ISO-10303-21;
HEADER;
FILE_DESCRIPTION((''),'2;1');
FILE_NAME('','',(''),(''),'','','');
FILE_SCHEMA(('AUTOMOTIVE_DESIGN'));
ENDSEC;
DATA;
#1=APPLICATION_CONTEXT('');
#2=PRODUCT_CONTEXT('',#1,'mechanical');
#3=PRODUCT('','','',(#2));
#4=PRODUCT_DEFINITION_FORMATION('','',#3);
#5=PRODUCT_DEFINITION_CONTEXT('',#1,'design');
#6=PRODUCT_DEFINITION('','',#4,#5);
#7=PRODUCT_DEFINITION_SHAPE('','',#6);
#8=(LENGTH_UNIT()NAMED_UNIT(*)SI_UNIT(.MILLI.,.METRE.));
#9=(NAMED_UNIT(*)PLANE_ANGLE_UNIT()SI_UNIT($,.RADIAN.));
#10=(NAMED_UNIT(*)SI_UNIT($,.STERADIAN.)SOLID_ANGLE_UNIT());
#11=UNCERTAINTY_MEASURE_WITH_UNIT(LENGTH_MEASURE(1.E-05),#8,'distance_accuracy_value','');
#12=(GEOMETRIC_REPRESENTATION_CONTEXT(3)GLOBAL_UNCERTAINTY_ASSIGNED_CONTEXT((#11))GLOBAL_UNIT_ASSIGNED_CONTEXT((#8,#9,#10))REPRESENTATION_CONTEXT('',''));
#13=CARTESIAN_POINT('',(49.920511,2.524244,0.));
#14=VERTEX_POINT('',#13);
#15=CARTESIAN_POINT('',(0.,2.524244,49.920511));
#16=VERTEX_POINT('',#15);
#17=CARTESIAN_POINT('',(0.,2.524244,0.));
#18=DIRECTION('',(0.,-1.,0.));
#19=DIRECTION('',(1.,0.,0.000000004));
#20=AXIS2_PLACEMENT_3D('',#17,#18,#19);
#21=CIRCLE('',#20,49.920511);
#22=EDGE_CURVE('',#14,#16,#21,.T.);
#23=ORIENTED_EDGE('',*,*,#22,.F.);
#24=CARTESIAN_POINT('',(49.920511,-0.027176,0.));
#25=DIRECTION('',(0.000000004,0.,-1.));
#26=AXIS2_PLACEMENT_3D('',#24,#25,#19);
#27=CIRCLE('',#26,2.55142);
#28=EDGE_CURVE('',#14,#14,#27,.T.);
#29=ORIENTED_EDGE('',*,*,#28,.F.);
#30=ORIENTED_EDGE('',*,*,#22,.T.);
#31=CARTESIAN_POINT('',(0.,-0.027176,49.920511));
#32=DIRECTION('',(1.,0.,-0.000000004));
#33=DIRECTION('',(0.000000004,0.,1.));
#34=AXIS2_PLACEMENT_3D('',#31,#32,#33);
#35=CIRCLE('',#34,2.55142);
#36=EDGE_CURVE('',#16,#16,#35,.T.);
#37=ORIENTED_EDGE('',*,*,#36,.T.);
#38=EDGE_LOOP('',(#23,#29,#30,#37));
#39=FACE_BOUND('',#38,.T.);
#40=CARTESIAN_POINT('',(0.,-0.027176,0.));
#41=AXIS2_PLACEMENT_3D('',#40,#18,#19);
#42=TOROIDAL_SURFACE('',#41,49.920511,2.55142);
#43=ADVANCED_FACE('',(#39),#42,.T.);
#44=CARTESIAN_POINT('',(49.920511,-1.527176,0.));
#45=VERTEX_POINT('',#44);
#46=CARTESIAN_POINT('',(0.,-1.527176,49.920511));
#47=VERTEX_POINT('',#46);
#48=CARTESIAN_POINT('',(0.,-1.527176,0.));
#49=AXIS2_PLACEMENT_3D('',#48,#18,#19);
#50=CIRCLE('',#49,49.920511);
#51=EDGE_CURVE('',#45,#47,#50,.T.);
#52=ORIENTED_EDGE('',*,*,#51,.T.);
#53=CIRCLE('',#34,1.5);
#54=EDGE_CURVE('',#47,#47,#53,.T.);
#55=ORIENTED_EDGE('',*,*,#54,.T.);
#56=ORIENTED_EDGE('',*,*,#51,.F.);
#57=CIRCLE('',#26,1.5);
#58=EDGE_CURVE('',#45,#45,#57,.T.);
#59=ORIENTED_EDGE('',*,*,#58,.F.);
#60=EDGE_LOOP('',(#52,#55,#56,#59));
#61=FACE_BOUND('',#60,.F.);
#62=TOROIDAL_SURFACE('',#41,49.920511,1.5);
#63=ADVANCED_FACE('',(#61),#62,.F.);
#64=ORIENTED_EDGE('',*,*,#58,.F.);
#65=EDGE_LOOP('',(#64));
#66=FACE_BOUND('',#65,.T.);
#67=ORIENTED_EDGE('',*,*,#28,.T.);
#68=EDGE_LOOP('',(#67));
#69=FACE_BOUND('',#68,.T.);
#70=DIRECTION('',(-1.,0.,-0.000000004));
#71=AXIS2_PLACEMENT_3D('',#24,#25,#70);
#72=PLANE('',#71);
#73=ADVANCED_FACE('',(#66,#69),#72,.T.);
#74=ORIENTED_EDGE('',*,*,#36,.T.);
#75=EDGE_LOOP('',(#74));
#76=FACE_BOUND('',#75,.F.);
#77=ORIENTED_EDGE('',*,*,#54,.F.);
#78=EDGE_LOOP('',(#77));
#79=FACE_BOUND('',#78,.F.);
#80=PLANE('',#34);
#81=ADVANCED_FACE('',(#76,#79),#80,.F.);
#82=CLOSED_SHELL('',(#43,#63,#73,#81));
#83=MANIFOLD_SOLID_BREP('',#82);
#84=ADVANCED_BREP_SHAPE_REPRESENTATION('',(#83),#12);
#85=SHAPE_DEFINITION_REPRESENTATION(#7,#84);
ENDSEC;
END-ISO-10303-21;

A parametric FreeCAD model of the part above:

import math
import FreeCAD as App
import Part
import Sketcher
Q = App.Units.Quantity

doc = App.newDocument("Part")
body = doc.addObject("PartDesign::Body", "Body")

sketch1 = body.newObject("Sketcher::SketchObject", "Sketch")
sketch1.AttachmentSupport = (doc.getObject("YZ_Plane"), [""])
sketch1.MapMode = "FlatFace"
sketch1.addGeometry(Part.Circle(App.Vector(0, 49.9, 0), App.Vector(0, 0, 1), 2.6), False)
sketch1.addConstraint([
    Sketcher.Constraint("Diameter", 0, Q("5.10284 mm")),
    Sketcher.Constraint("DistanceY", -1, 1, 0, 3, Q("49.920511 mm")),
    Sketcher.Constraint("DistanceX", 0, 3, -1, 1, Q("0.027176 mm")),
])

sketch2 = body.newObject("Sketcher::SketchObject", "Sketch001")
sketch2.AttachmentSupport = (doc.getObject("XZ_Plane"), [""])
sketch2.MapMode = "FlatFace"
sketch2.addGeometry(Part.ArcOfCircle(Part.Circle(App.Vector(0, 0, 0), App.Vector(0, 0, 1), 50), math.radians(0), math.radians(90)), False)
sketch2.addConstraint([
    Sketcher.Constraint("Coincident", 0, 3, -1, 1),
    Sketcher.Constraint("PointOnObject", 0, 1, -1),
    Sketcher.Constraint("PointOnObject", 0, 2, -2),
    Sketcher.Constraint("Radius", 0, Q("50 mm")),
])
doc.recompute()

additivepipe = body.newObject("PartDesign::AdditivePipe", "AdditivePipe")
additivepipe.Profile = sketch1
additivepipe.Spine = (sketch2, ["Edge1"])

sketch3 = body.newObject("Sketcher::SketchObject", "Sketch002")
sketch3.AttachmentSupport = (doc.getObject("YZ_Plane"), [""])
sketch3.MapMode = "FlatFace"
sketch3.addGeometry(Part.Circle(App.Vector(0, 49.9, 0), App.Vector(0, 0, 1), 1.5), False)
sketch3.addConstraint([
    Sketcher.Constraint("Diameter", 0, Q("3 mm")),
    Sketcher.Constraint("DistanceY", -1, 1, 0, 3, Q("49.920511 mm")),
    Sketcher.Constraint("DistanceX", 0, 3, -1, 1, Q("0.027176 mm")),
])

sketch4 = body.newObject("Sketcher::SketchObject", "Sketch003")
sketch4.AttachmentSupport = (doc.getObject("XZ_Plane"), [""])
sketch4.MapMode = "FlatFace"
sketch4.addGeometry(Part.ArcOfCircle(Part.Circle(App.Vector(0, 0, 0), App.Vector(0, 0, 1), 50), math.radians(0), math.radians(90)), False)
sketch4.addConstraint([
    Sketcher.Constraint("Coincident", 0, 3, -1, 1),
    Sketcher.Constraint("PointOnObject", 0, 1, -1),
    Sketcher.Constraint("PointOnObject", 0, 2, -2),
    Sketcher.Constraint("Radius", 0, Q("50 mm")),
])
doc.recompute()

subtractivepipe = body.newObject("PartDesign::SubtractivePipe", "SubtractivePipe")
subtractivepipe.Profile = sketch3
subtractivepipe.Spine = (sketch4, ["Edge1"])

doc.recompute()
